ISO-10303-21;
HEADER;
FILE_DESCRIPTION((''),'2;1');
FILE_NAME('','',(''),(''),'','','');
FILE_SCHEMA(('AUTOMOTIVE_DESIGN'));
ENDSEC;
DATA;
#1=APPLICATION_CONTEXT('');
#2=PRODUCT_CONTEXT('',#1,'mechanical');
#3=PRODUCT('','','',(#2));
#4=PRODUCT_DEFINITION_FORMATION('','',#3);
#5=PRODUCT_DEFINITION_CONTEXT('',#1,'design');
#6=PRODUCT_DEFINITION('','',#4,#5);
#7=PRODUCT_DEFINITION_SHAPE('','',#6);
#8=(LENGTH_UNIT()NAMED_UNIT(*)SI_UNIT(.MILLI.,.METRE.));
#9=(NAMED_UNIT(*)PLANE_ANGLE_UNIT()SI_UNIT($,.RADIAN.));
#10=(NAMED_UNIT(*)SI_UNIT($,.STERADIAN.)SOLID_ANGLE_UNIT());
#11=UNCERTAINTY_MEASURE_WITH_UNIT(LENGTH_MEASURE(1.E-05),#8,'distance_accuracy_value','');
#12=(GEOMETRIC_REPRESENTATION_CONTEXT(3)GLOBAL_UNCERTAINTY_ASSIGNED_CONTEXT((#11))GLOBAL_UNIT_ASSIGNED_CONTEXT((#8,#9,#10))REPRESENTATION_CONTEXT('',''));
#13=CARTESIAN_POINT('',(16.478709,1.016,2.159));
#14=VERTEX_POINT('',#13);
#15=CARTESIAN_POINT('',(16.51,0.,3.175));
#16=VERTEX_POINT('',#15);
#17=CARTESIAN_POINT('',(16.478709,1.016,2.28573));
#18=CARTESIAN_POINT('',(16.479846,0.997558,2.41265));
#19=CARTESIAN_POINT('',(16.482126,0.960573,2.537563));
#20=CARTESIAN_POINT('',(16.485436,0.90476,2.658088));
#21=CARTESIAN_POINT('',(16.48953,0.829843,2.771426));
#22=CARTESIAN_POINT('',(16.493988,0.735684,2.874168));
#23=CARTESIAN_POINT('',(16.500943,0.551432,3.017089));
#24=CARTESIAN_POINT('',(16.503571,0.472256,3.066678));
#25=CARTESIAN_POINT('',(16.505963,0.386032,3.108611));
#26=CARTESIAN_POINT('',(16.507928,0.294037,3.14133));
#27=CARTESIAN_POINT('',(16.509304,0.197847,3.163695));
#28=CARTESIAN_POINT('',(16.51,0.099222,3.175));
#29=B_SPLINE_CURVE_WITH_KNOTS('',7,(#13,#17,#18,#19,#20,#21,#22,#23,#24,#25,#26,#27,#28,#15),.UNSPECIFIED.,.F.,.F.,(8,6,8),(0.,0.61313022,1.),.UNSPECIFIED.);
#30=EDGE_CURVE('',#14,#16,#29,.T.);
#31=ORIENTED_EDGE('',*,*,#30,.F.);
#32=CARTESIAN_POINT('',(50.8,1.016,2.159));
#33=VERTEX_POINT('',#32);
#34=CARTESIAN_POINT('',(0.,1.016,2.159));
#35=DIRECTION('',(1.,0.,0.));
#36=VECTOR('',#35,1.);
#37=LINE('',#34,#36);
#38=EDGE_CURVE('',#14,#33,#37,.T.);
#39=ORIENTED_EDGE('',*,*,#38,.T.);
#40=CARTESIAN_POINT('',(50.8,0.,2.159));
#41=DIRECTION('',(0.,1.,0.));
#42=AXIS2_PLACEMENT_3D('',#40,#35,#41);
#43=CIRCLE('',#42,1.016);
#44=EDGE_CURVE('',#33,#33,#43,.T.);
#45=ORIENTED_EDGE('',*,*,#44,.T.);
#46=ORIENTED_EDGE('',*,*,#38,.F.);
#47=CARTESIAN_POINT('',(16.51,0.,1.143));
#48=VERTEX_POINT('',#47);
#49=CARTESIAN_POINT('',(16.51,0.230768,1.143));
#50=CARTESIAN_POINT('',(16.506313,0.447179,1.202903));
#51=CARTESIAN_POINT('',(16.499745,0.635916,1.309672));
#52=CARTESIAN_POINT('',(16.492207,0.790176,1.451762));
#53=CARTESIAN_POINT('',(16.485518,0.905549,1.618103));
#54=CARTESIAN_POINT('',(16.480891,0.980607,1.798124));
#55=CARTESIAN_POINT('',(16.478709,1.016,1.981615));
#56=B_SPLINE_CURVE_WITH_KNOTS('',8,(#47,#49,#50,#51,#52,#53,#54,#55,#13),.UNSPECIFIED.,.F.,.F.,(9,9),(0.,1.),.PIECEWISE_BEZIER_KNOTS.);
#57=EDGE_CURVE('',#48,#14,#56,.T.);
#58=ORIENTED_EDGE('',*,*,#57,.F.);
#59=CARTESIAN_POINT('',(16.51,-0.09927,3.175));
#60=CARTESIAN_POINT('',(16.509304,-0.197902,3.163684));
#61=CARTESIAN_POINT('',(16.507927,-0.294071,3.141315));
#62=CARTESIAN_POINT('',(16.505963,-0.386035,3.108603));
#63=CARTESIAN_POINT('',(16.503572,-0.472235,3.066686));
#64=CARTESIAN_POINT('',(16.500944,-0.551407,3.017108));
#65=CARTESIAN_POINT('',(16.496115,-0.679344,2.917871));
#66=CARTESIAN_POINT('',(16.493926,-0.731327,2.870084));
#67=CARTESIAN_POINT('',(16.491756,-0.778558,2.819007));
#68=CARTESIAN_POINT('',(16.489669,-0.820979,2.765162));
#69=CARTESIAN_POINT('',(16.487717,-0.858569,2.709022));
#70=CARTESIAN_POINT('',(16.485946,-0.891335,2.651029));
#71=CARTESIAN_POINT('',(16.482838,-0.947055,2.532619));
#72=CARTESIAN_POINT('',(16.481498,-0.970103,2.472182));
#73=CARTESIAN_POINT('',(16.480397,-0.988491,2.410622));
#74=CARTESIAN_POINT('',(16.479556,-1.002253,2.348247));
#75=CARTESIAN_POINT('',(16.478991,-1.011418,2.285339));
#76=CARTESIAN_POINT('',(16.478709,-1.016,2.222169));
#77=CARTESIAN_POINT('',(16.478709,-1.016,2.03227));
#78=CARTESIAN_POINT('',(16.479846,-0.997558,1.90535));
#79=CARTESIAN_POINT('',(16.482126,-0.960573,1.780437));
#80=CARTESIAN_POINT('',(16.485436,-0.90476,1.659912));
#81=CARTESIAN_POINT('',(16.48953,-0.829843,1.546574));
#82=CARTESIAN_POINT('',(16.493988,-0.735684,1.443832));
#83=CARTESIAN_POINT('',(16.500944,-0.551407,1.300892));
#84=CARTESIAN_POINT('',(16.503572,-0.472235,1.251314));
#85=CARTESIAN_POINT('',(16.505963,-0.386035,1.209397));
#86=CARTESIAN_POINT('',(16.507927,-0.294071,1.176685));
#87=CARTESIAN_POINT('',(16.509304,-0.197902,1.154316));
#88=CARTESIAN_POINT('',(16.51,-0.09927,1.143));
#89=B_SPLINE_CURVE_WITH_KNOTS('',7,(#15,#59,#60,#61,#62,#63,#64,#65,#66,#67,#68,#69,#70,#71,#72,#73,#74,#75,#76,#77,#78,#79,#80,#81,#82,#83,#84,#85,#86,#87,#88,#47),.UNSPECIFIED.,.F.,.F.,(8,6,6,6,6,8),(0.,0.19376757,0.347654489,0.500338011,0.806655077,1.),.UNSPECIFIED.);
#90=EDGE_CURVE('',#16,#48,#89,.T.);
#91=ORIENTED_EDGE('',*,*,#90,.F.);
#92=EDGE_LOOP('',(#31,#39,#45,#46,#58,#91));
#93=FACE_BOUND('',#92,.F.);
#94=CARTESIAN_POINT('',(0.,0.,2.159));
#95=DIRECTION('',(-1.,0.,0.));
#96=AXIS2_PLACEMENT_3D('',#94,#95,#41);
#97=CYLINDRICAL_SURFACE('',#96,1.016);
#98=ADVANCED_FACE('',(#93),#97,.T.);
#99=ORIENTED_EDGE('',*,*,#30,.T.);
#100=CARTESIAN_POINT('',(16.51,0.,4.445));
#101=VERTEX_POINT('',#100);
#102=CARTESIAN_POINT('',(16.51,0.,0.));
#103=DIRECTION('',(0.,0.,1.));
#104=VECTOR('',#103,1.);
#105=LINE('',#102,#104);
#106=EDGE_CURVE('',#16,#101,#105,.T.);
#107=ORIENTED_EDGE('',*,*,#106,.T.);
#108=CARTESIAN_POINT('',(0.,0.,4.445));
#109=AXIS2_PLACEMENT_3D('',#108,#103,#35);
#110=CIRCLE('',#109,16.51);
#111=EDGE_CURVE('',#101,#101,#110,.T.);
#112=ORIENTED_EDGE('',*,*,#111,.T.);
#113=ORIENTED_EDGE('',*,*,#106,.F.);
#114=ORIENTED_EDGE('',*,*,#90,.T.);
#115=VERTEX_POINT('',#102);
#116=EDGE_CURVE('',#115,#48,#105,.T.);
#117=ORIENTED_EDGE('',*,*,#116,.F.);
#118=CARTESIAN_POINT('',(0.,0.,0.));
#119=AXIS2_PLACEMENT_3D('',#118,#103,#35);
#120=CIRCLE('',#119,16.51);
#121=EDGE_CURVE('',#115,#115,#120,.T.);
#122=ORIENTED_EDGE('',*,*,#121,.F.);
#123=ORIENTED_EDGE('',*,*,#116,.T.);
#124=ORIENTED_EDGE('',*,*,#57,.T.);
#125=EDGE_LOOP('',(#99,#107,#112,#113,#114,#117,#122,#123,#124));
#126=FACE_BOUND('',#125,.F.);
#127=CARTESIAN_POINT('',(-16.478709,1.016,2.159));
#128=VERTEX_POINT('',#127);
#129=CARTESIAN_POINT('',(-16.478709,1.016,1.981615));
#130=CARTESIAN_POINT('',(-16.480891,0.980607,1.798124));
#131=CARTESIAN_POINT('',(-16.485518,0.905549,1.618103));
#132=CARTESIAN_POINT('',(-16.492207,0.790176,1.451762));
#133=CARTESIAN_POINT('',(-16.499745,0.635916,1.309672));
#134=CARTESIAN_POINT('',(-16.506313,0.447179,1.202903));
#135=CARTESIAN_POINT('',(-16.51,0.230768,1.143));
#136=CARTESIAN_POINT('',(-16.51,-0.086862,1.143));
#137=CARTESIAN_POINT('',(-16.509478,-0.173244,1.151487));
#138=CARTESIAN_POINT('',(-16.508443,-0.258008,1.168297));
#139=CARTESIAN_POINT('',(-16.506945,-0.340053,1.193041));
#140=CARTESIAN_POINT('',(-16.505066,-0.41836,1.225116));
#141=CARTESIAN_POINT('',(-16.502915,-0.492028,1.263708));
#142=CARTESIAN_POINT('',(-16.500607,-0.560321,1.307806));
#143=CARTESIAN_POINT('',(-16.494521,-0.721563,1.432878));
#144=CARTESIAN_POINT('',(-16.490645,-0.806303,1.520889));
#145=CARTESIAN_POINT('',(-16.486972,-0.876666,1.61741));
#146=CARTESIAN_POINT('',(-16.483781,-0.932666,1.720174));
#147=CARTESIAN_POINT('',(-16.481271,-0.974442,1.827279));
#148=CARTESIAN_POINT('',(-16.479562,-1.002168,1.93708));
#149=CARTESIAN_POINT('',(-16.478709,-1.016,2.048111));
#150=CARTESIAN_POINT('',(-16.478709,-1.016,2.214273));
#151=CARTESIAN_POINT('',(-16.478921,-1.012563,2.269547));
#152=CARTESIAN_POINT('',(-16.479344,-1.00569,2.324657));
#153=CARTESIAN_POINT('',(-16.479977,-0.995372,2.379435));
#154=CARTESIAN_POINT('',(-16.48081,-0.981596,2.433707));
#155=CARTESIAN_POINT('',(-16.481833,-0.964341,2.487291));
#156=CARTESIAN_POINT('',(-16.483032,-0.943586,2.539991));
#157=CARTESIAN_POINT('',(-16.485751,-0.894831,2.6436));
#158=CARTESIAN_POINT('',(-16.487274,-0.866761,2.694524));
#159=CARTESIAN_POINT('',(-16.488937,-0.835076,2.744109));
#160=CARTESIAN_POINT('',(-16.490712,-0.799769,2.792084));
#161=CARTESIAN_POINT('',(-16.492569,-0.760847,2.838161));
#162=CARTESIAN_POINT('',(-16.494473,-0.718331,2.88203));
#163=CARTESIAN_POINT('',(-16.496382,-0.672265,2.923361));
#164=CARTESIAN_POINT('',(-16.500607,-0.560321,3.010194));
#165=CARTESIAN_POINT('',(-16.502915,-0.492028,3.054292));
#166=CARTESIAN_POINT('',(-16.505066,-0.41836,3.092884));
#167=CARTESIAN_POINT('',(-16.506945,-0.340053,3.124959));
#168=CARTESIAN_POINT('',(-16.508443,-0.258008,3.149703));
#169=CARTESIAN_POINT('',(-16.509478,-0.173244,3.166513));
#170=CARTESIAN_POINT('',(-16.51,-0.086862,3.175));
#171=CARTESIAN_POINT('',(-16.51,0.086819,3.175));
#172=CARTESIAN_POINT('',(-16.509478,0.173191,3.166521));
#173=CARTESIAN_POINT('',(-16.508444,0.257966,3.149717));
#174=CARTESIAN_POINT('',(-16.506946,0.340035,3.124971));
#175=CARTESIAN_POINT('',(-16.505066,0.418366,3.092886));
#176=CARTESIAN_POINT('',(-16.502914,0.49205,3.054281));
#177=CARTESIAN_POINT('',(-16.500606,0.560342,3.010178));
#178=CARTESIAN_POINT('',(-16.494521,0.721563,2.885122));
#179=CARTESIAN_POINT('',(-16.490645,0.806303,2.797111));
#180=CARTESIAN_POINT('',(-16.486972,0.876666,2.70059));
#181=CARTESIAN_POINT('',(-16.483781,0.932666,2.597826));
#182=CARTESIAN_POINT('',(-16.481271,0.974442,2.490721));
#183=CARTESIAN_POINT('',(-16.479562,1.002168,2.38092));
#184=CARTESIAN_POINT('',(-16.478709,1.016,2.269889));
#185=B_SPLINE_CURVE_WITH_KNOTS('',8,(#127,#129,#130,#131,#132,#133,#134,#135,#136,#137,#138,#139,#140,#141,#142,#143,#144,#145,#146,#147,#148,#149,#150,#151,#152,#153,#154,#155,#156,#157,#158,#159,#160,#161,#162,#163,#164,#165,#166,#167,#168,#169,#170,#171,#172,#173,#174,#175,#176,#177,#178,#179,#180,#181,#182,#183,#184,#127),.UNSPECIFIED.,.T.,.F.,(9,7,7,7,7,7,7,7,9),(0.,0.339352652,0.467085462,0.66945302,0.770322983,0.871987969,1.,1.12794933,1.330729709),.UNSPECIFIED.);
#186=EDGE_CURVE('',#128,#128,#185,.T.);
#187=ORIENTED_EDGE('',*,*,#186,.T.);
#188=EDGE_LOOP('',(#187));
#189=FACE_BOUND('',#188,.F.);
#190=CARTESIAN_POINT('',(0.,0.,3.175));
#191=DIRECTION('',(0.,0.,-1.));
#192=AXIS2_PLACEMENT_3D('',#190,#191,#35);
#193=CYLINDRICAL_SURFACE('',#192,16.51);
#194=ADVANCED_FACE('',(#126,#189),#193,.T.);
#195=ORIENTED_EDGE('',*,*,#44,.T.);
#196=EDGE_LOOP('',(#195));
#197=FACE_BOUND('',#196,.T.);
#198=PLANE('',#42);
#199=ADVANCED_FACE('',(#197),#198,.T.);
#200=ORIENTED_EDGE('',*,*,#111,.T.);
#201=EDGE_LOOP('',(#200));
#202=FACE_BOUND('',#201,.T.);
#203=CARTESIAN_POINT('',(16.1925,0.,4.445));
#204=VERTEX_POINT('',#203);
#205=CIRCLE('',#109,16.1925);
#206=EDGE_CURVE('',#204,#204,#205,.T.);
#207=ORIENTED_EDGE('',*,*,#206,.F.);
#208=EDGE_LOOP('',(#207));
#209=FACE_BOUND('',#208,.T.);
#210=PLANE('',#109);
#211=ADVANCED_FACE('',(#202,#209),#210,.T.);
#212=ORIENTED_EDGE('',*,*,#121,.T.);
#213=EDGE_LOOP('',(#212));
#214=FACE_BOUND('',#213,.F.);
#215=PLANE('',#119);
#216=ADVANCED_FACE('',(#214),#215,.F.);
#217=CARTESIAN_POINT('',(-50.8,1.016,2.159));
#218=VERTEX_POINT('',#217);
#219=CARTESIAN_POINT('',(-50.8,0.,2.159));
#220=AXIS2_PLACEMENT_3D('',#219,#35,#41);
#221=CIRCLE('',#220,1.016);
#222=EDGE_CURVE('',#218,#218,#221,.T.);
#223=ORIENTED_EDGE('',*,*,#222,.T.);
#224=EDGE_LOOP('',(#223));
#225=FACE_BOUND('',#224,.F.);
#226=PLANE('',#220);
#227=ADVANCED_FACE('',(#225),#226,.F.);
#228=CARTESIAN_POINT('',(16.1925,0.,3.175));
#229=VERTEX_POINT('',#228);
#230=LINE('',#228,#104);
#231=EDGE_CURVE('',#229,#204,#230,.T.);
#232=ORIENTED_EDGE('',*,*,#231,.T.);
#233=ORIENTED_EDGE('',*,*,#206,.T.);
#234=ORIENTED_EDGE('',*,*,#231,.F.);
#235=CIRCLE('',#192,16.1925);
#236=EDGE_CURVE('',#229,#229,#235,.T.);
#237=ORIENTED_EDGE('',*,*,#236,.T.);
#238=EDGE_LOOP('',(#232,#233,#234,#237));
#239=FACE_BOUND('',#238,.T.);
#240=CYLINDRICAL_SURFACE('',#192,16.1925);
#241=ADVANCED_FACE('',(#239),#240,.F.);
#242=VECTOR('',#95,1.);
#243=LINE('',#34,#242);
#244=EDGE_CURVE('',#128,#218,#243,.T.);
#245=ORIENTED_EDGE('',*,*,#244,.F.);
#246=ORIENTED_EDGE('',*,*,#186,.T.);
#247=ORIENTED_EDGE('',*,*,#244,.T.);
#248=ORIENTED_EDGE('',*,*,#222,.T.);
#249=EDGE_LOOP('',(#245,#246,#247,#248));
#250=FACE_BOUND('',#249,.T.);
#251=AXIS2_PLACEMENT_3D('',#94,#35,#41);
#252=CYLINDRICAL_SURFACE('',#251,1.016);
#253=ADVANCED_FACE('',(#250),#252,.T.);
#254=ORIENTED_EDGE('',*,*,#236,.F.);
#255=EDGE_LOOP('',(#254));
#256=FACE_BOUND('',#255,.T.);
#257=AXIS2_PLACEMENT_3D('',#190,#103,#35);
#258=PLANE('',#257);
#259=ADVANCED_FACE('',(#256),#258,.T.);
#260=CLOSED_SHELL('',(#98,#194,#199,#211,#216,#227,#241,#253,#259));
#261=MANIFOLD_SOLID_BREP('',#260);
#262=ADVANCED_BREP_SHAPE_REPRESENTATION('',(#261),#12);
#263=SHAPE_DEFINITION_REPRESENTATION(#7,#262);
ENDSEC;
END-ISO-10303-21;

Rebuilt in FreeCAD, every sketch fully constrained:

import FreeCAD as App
import Part
import Sketcher
from FreeCAD import Vector
Q = App.Units.Quantity

doc = App.newDocument("Part")
body = doc.addObject("PartDesign::Body", "Body")

sketch1 = body.newObject("Sketcher::SketchObject", "Sketch")
sketch1.AttachmentSupport = (doc.getObject("XY_Plane"), [""])
sketch1.MapMode = "FlatFace"
sketch1.addGeometry(Part.Circle(Vector(0, 0, 0), Vector(0, 0, 1), 16.51), False)
sketch1.addConstraint(Sketcher.Constraint("Coincident", 0, 3, -1, 1))
sketch1.addConstraint(Sketcher.Constraint("Diameter", 0, Q("1.3 in")))
pad1 = body.newObject("PartDesign::Pad", "Pad")
pad1.Profile = sketch1
pad1.Length = Q("0.125 in")

sketch2 = body.newObject("Sketcher::SketchObject", "Sketch001")
sketch2.AttachmentSupport = (doc.getObject("XY_Plane"), [""])
sketch2.MapMode = "FlatFace"
sketch2.AttachmentOffset = App.Placement(Vector(0, 0, 0.125 * 25.4), App.Rotation())
sketch2.addGeometry(Part.Circle(Vector(0, 0, 0), Vector(0, 0, 1), 16.51), False)
sketch2.addGeometry(Part.Circle(Vector(0, 0, 0), Vector(0, 0, 1), 16.1925), False)
sketch2.addConstraint(Sketcher.Constraint("Coincident", 0, 3, -1, 1))
sketch2.addConstraint(Sketcher.Constraint("Coincident", 1, 3, -1, 1))
sketch2.addConstraint(Sketcher.Constraint("Diameter", 0, Q("1.3 in")))
sketch2.addConstraint(Sketcher.Constraint("Diameter", 1, Q("1.275 in")))
pad2 = body.newObject("PartDesign::Pad", "Pad001")
pad2.Profile = sketch2
pad2.Length = Q("0.05 in")

sketch3 = body.newObject("Sketcher::SketchObject", "Sketch002")
sketch3.AttachmentSupport = (doc.getObject("YZ_Plane"), [""])
sketch3.MapMode = "FlatFace"
sketch3.addGeometry(Part.Circle(Vector(0, 2.159, 0), Vector(0, 0, 1), 1.016), False)
sketch3.addConstraint(Sketcher.Constraint("PointOnObject", 0, 3, -2))
sketch3.addConstraint(Sketcher.Constraint("Diameter", 0, Q("0.08 in")))
sketch3.addConstraint(Sketcher.Constraint("DistanceY", -1, 1, 0, 3, Q("0.085 in")))
pad3 = body.newObject("PartDesign::Pad", "Pad002")
pad3.Profile = sketch3
pad3.Type = "TwoLengths"
pad3.Length = Q("2 in")
pad3.Length2 = Q("2 in")

doc.recompute()
